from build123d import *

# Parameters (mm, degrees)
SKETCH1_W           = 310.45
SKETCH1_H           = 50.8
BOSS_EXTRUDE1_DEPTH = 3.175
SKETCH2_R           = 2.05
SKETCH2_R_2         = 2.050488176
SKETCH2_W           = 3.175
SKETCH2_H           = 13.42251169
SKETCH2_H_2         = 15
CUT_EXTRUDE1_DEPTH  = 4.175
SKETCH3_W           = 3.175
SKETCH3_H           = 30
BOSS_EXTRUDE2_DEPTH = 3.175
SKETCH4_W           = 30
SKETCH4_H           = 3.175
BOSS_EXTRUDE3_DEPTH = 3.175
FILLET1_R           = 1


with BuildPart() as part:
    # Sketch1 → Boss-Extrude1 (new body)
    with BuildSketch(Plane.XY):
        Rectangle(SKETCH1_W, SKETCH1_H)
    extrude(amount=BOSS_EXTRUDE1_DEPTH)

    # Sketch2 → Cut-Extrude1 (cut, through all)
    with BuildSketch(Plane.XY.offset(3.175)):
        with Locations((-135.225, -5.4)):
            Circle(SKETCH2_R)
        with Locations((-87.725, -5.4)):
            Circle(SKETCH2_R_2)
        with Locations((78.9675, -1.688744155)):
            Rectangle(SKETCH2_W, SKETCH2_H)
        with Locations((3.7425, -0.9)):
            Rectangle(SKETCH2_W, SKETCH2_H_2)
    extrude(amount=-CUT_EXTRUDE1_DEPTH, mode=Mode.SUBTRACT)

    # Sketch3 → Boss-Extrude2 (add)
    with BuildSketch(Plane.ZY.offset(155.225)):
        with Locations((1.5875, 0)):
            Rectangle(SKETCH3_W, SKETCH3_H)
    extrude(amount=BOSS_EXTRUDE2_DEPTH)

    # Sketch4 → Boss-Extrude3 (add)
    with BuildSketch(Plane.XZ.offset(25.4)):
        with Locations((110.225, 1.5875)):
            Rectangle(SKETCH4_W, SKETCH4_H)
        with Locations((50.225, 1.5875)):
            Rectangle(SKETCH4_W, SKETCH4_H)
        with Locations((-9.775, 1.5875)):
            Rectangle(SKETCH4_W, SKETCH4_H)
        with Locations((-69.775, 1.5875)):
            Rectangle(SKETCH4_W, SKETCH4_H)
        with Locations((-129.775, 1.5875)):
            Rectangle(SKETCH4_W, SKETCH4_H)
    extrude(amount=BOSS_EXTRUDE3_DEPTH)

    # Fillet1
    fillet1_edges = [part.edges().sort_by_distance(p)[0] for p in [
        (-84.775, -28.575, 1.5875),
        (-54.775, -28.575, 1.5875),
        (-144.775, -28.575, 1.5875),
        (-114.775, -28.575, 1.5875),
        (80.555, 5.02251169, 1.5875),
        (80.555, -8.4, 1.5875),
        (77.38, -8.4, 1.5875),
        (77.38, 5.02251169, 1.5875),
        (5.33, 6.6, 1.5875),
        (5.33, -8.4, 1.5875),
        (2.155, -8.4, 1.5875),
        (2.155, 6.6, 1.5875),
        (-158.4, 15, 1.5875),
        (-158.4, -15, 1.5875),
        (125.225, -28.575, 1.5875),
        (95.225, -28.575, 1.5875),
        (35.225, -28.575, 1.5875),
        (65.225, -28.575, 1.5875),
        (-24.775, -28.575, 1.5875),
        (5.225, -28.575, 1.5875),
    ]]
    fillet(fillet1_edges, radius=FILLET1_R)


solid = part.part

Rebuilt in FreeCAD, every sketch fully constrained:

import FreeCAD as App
import Part
import Sketcher

V = App.Vector


def edges_at(feature, points):
    """Names of the edges that pass closest to the given points."""
    edges = feature.Shape.Edges
    near = lambda p: min(range(len(edges)), key=lambda i: edges[i].distToShape(Part.Vertex(*p))[0])
    return sorted({f"Edge{near(p) + 1}" for p in points})

doc = App.newDocument("Part")
body = doc.addObject("PartDesign::Body", "Body")

# Sketch on XY plane
sketch1 = doc.addObject("Sketcher::SketchObject", "Sketch")
body.addObject(sketch1)
sketch1.AttachmentSupport = (doc.XY_Plane, [""])
sketch1.MapMode = "FlatFace"
sketch1.addGeometry([
    Part.LineSegment(V(-155.225, 25.4, 0), V(-155.225, -25.4, 0)),
    Part.LineSegment(V(-155.225, -25.4, 0), V(155.225, -25.4, 0)),
    Part.LineSegment(V(155.225, -25.4, 0), V(155.225, 25.4, 0)),
    Part.LineSegment(V(155.225, 25.4, 0), V(-155.225, 25.4, 0)),
], False)
sketch1.addConstraint([
    Sketcher.Constraint("Coincident", 0, 2, 1, 1),
    Sketcher.Constraint("Coincident", 1, 2, 2, 1),
    Sketcher.Constraint("Coincident", 2, 2, 3, 1),
    Sketcher.Constraint("Coincident", 3, 2, 0, 1),
    Sketcher.Constraint("Vertical", 0),
    Sketcher.Constraint("Horizontal", 1),
    Sketcher.Constraint("Vertical", 2),
    Sketcher.Constraint("Horizontal", 3),
    Sketcher.Constraint("Symmetric", 0, 2, 2, 2, -1, 1),
    Sketcher.Constraint("DistanceY", 0, 2, 0, 1, 50.8),
    Sketcher.Constraint("DistanceX", 1, 1, 1, 2, 310.45),
])
pad1 = doc.addObject("PartDesign::Pad", "Pad")
body.addObject(pad1)
pad1.Profile = sketch1
pad1.Length = 3.175

# Sketch on XY plane
sketch2 = doc.addObject("Sketcher::SketchObject", "Sketch001")
body.addObject(sketch2)
sketch2.AttachmentSupport = (doc.XY_Plane, [""])
sketch2.MapMode = "FlatFace"
sketch2.AttachmentOffset = App.Placement(V(0, 0, 3.175), App.Rotation())
sketch2.addGeometry([
    Part.Circle(V(-135.225, -5.4, 0), V(0, 0, 1), 2.05),  # 0
    Part.Circle(V(-87.725, -5.4, 0), V(0, 0, 1), 2.050488),  # 1
    Part.LineSegment(V(77.38, 5.022512, 0), V(77.38, -8.4, 0)),  # 2
    Part.LineSegment(V(77.38, -8.4, 0), V(80.555, -8.4, 0)),  # 3
    Part.LineSegment(V(80.555, -8.4, 0), V(80.555, 5.022512, 0)),  # 4
    Part.LineSegment(V(80.555, 5.022512, 0), V(77.38, 5.022512, 0)),  # 5
    Part.LineSegment(V(2.155, 6.6, 0), V(2.155, -8.4, 0)),  # 6
    Part.LineSegment(V(2.155, -8.4, 0), V(5.33, -8.4, 0)),  # 7
    Part.LineSegment(V(5.33, -8.4, 0), V(5.33, 6.6, 0)),  # 8
    Part.LineSegment(V(5.33, 6.6, 0), V(2.155, 6.6, 0)),  # 9
], False)
sketch2.addConstraint([
    Sketcher.Constraint("Coincident", 2, 2, 3, 1),
    Sketcher.Constraint("Coincident", 3, 2, 4, 1),
    Sketcher.Constraint("Coincident", 4, 2, 5, 1),
    Sketcher.Constraint("Coincident", 5, 2, 2, 1),
    Sketcher.Constraint("Coincident", 6, 2, 7, 1),
    Sketcher.Constraint("Coincident", 7, 2, 8, 1),
    Sketcher.Constraint("Coincident", 8, 2, 9, 1),
    Sketcher.Constraint("Coincident", 9, 2, 6, 1),
    Sketcher.Constraint("Vertical", 2),
    Sketcher.Constraint("Horizontal", 3),
    Sketcher.Constraint("Vertical", 4),
    Sketcher.Constraint("Horizontal", 5),
    Sketcher.Constraint("Vertical", 6),
    Sketcher.Constraint("Horizontal", 7),
    Sketcher.Constraint("Vertical", 8),
    Sketcher.Constraint("Horizontal", 9),
    Sketcher.Constraint("Horizontal", 0, 3, 1, 3),
    Sketcher.Constraint("Horizontal", 3, 2, 6, 2),
    Sketcher.Constraint("Equal", 5, 7),
    Sketcher.Constraint("Diameter", 0, 4.1),
    Sketcher.Constraint("DistanceY", 6, 2, 6, 1, 15.0),
    Sketcher.Constraint("DistanceY", 2, 2, 1, 3, 3.0),
    Sketcher.Constraint("DistanceY", 0, 3, -1, 1, 5.4),
    Sketcher.Constraint("DistanceX", 0, 3, 1, 3, 47.5),
    Sketcher.Constraint("DistanceX", 6, 2, 3, 2, 78.4),
    Sketcher.Constraint("DistanceX", 3, 1, 3, 2, 3.175),
    Sketcher.Constraint("DistanceX", -1, 1, 2, 2, 77.38),
    Sketcher.Constraint("DistanceX", 1, 3, 3, 2, 168.28),
    Sketcher.Constraint("Diameter", 1, 4.100976),
    Sketcher.Constraint("DistanceY", 2, 2, 2, 1, 13.422512),
])
pocket1 = doc.addObject("PartDesign::Pocket", "Pocket")
body.addObject(pocket1)
pocket1.Profile = sketch2
pocket1.Type = "ThroughAll"

# Sketch on YZ plane
sketch3 = doc.addObject("Sketcher::SketchObject", "Sketch002")
body.addObject(sketch3)
sketch3.AttachmentSupport = (doc.YZ_Plane, [""])
sketch3.MapMode = "FlatFace"
sketch3.AttachmentOffset = App.Placement(V(0, 0, -155.225), App.Rotation())
sketch3.addGeometry([
    Part.LineSegment(V(15, 0, 0), V(-15, 0, 0)),
    Part.LineSegment(V(-15, 0, 0), V(-15, 3.175, 0)),
    Part.LineSegment(V(-15, 3.175, 0), V(15, 3.175, 0)),
    Part.LineSegment(V(15, 3.175, 0), V(15, 0, 0)),
], False)
sketch3.addConstraint([
    Sketcher.Constraint("Coincident", 0, 2, 1, 1),
    Sketcher.Constraint("Coincident", 1, 2, 2, 1),
    Sketcher.Constraint("Coincident", 2, 2, 3, 1),
    Sketcher.Constraint("Coincident", 3, 2, 0, 1),
    Sketcher.Constraint("Horizontal", 0),
    Sketcher.Constraint("Vertical", 1),
    Sketcher.Constraint("Horizontal", 2),
    Sketcher.Constraint("Vertical", 3),
    Sketcher.Constraint("Symmetric", 0, 2, 3, 2, -1, 1),
    Sketcher.Constraint("DistanceX", 0, 2, 0, 1, 30.0),
    Sketcher.Constraint("DistanceY", 1, 1, 1, 2, 3.175),
])
pad2 = doc.addObject("PartDesign::Pad", "Pad001")
body.addObject(pad2)
pad2.Profile = sketch3
pad2.Length = 3.175
pad2.Reversed = True

# Sketch on XZ plane
sketch4 = doc.addObject("Sketcher::SketchObject", "Sketch003")
body.addObject(sketch4)
sketch4.AttachmentSupport = (doc.XZ_Plane, [""])
sketch4.MapMode = "FlatFace"
sketch4.AttachmentOffset = App.Placement(V(0, 0, 25.4), App.Rotation())
sketch4.addGeometry([
    Part.LineSegment(V(95.225, 3.175, 0), V(95.225, 0, 0)),  # 0
    Part.LineSegment(V(95.225, 0, 0), V(125.225, 0, 0)),  # 1
    Part.LineSegment(V(125.225, 0, 0), V(125.225, 3.175, 0)),  # 2
    Part.LineSegment(V(125.225, 3.175, 0), V(95.225, 3.175, 0)),  # 3
    Part.LineSegment(V(35.225, 3.175, 0), V(35.225, 0, 0)),  # 4
    Part.LineSegment(V(35.225, 0, 0), V(65.225, 0, 0)),  # 5
    Part.LineSegment(V(65.225, 0, 0), V(65.225, 3.175, 0)),  # 6
    Part.LineSegment(V(65.225, 3.175, 0), V(35.225, 3.175, 0)),  # 7
    Part.LineSegment(V(-24.775, 3.175, 0), V(-24.775, 0, 0)),  # 8
    Part.LineSegment(V(-24.775, 0, 0), V(5.225, 0, 0)),  # 9
    Part.LineSegment(V(5.225, 0, 0), V(5.225, 3.175, 0)),  # 10
    Part.LineSegment(V(5.225, 3.175, 0), V(-24.775, 3.175, 0)),  # 11
    Part.LineSegment(V(-84.775, 3.175, 0), V(-84.775, 0, 0)),  # 12
    Part.LineSegment(V(-84.775, 0, 0), V(-54.775, 0, 0)),  # 13
    Part.LineSegment(V(-54.775, 0, 0), V(-54.775, 3.175, 0)),  # 14
    Part.LineSegment(V(-54.775, 3.175, 0), V(-84.775, 3.175, 0)),  # 15
    Part.LineSegment(V(-144.775, 3.175, 0), V(-144.775, 0, 0)),  # 16
    Part.LineSegment(V(-144.775, 0, 0), V(-114.775, 0, 0)),  # 17
    Part.LineSegment(V(-114.775, 0, 0), V(-114.775, 3.175, 0)),  # 18
    Part.LineSegment(V(-114.775, 3.175, 0), V(-144.775, 3.175, 0)),  # 19
], False)
sketch4.addConstraint([
    Sketcher.Constraint("Coincident", 0, 2, 1, 1),
    Sketcher.Constraint("Coincident", 1, 2, 2, 1),
    Sketcher.Constraint("Coincident", 2, 2, 3, 1),
    Sketcher.Constraint("Coincident", 3, 2, 0, 1),
    Sketcher.Constraint("Coincident", 4, 2, 5, 1),
    Sketcher.Constraint("Coincident", 5, 2, 6, 1),
    Sketcher.Constraint("Coincident", 6, 2, 7, 1),
    Sketcher.Constraint("Coincident", 7, 2, 4, 1),
    Sketcher.Constraint("Coincident", 8, 2, 9, 1),
    Sketcher.Constraint("Coincident", 9, 2, 10, 1),
    Sketcher.Constraint("Coincident", 10, 2, 11, 1),
    Sketcher.Constraint("Coincident", 11, 2, 8, 1),
    Sketcher.Constraint("Coincident", 12, 2, 13, 1),
    Sketcher.Constraint("Coincident", 13, 2, 14, 1),
    Sketcher.Constraint("Coincident", 14, 2, 15, 1),
    Sketcher.Constraint("Coincident", 15, 2, 12, 1),
    Sketcher.Constraint("Coincident", 16, 2, 17, 1),
    Sketcher.Constraint("Coincident", 17, 2, 18, 1),
    Sketcher.Constraint("Coincident", 18, 2, 19, 1),
    Sketcher.Constraint("Coincident", 19, 2, 16, 1),
    Sketcher.Constraint("Vertical", 0),
    Sketcher.Constraint("Horizontal", 1),
    Sketcher.Constraint("Vertical", 2),
    Sketcher.Constraint("Horizontal", 3),
    Sketcher.Constraint("Vertical", 4),
    Sketcher.Constraint("Horizontal", 5),
    Sketcher.Constraint("Vertical", 6),
    Sketcher.Constraint("Horizontal", 7),
    Sketcher.Constraint("Vertical", 8),
    Sketcher.Constraint("Horizontal", 9),
    Sketcher.Constraint("Vertical", 10),
    Sketcher.Constraint("Horizontal", 11),
    Sketcher.Constraint("Vertical", 12),
    Sketcher.Constraint("Horizontal", 13),
    Sketcher.Constraint("Vertical", 14),
    Sketcher.Constraint("Horizontal", 15),
    Sketcher.Constraint("Vertical", 16),
    Sketcher.Constraint("Horizontal", 17),
    Sketcher.Constraint("Vertical", 18),
    Sketcher.Constraint("Horizontal", 19),
    Sketcher.Constraint("PointOnObject", 0, 2, -1),
    Sketcher.Constraint("PointOnObject", 4, 2, -1),
    Sketcher.Constraint("PointOnObject", 8, 2, -1),
    Sketcher.Constraint("PointOnObject", 12, 2, -1),
    Sketcher.Constraint("PointOnObject", 16, 2, -1),
    Sketcher.Constraint("Horizontal", 3, 2, 6, 2),
    Sketcher.Constraint("Horizontal", 7, 2, 10, 2),
    Sketcher.Constraint("Horizontal", 11, 2, 14, 2),
    Sketcher.Constraint("Horizontal", 15, 2, 18, 2),
    Sketcher.Constraint("Equal", 3, 5),
    Sketcher.Constraint("Equal", 7, 9),
    Sketcher.Constraint("Equal", 11, 13),
    Sketcher.Constraint("Equal", 15, 17),
    Sketcher.Constraint("DistanceX", 1, 1, 1, 2, 30.0),
    Sketcher.Constraint("DistanceX", 4, 2, 0, 2, 60.0),
    Sketcher.Constraint("DistanceX", 8, 2, 4, 2, 60.0),
    Sketcher.Constraint("DistanceX", 12, 2, 8, 2, 60.0),
    Sketcher.Constraint("DistanceX", 16, 2, 12, 2, 60.0),
    Sketcher.Constraint("DistanceY", 0, 2, 0, 1, 3.175),
    Sketcher.Constraint("DistanceX", -1, 1, 0, 2, 95.225),
])
pad3 = doc.addObject("PartDesign::Pad", "Pad002")
body.addObject(pad3)
pad3.Profile = sketch4
pad3.Length = 3.175
doc.recompute()

fillet = doc.addObject("PartDesign::Fillet", "Fillet")
body.addObject(fillet)
fillet.Base = (pad3, edges_at(pad3, [
    (-84.775, -28.575, 1.587),
    (-54.775, -28.575, 1.587),
    (-144.775, -28.575, 1.587),
    (-114.775, -28.575, 1.587),
    (80.555, 5.023, 1.587),
    (80.555, -8.4, 1.587),
    (77.38, -8.4, 1.587),
    (77.38, 5.023, 1.587),
    (5.33, 6.6, 1.587),
    (5.33, -8.4, 1.587),
    (2.155, -8.4, 1.587),
    (2.155, 6.6, 1.587),
    (-158.4, 15, 1.587),
    (-158.4, -15, 1.587),
    (125.225, -28.575, 1.587),
    (95.225, -28.575, 1.587),
    (35.225, -28.575, 1.587),
    (65.225, -28.575, 1.587),
    (-24.775, -28.575, 1.587),
    (5.225, -28.575, 1.587),
]))
fillet.Radius = 1

doc.recompute()
